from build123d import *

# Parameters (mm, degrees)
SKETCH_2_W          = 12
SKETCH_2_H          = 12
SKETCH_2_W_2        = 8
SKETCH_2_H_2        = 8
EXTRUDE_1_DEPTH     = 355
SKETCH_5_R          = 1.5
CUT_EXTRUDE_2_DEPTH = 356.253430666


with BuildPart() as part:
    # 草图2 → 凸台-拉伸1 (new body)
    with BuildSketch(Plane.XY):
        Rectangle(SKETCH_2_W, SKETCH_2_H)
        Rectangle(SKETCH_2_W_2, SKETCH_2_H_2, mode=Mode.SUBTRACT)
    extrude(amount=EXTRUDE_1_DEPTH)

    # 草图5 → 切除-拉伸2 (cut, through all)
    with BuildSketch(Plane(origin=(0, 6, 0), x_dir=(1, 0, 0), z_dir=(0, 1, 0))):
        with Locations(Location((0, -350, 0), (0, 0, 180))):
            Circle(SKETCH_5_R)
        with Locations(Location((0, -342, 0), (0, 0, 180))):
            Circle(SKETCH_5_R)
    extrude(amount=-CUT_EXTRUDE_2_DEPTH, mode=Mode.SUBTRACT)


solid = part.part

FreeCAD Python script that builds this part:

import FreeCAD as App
import Part
import Sketcher

doc = App.newDocument("Part")
body = doc.addObject("PartDesign::Body", "Body")

# Sketch on XY plane
sketch1 = doc.addObject("Sketcher::SketchObject", "Sketch")
body.addObject(sketch1)
sketch1.AttachmentSupport = (doc.XY_Plane, [""])
sketch1.MapMode = "FlatFace"
sketch1.addGeometry([
    Part.LineSegment(App.Vector(-6, 6, 0), App.Vector(-6, -6, 0)),  # 0
    Part.LineSegment(App.Vector(-6, -6, 0), App.Vector(6, -6, 0)),  # 1
    Part.LineSegment(App.Vector(6, -6, 0), App.Vector(6, 6, 0)),  # 2
    Part.LineSegment(App.Vector(6, 6, 0), App.Vector(-6, 6, 0)),  # 3
    Part.LineSegment(App.Vector(4, -4, 0), App.Vector(-4, -4, 0)),  # 4
    Part.LineSegment(App.Vector(-4, -4, 0), App.Vector(-4, 4, 0)),  # 5
    Part.LineSegment(App.Vector(-4, 4, 0), App.Vector(4, 4, 0)),  # 6
    Part.LineSegment(App.Vector(4, 4, 0), App.Vector(4, -4, 0)),  # 7
], False)
sketch1.addConstraint([
    Sketcher.Constraint("Coincident", 0, 2, 1, 1),
    Sketcher.Constraint("Coincident", 1, 2, 2, 1),
    Sketcher.Constraint("Coincident", 2, 2, 3, 1),
    Sketcher.Constraint("Coincident", 3, 2, 0, 1),
    Sketcher.Constraint("Coincident", 4, 2, 5, 1),
    Sketcher.Constraint("Coincident", 5, 2, 6, 1),
    Sketcher.Constraint("Coincident", 6, 2, 7, 1),
    Sketcher.Constraint("Coincident", 7, 2, 4, 1),
    Sketcher.Constraint("Vertical", 0),
    Sketcher.Constraint("Horizontal", 1),
    Sketcher.Constraint("Vertical", 2),
    Sketcher.Constraint("Horizontal", 3),
    Sketcher.Constraint("Horizontal", 4),
    Sketcher.Constraint("Vertical", 5),
    Sketcher.Constraint("Horizontal", 6),
    Sketcher.Constraint("Vertical", 7),
    Sketcher.Constraint("Symmetric", 0, 2, 2, 2, -1, 1),
    Sketcher.Constraint("Symmetric", 4, 2, 6, 2, -1, 1),
    Sketcher.Constraint("Equal", 3, 0),
    Sketcher.Constraint("Equal", 6, 5),
    Sketcher.Constraint("DistanceX", 1, 1, 1, 2, 12.0),
    Sketcher.Constraint("DistanceX", 4, 2, 4, 1, 8.0),
])
pad1 = doc.addObject("PartDesign::Pad", "Pad")
body.addObject(pad1)
pad1.Profile = sketch1
pad1.Length = 355

# Sketch on XZ plane
sketch2 = doc.addObject("Sketcher::SketchObject", "Sketch001")
body.addObject(sketch2)
sketch2.AttachmentSupport = (doc.XZ_Plane, [""])
sketch2.MapMode = "FlatFace"
sketch2.AttachmentOffset = App.Placement(App.Vector(0, 0, -6), App.Rotation())
sketch2.addGeometry([
    Part.Circle(App.Vector(0, 350, 0), App.Vector(0, 0, 1), 1.5),
    Part.Circle(App.Vector(0, 342, 0), App.Vector(0, 0, 1), 1.5),
], False)
sketch2.addConstraint([
    Sketcher.Constraint("Equal", 0, 1),
    Sketcher.Constraint("PointOnObject", 0, 3, -2),
    Sketcher.Constraint("PointOnObject", 1, 3, -2),
    Sketcher.Constraint("Diameter", 0, 3.0),
    Sketcher.Constraint("DistanceY", -1, 1, 0, 3, 350.0),
    Sketcher.Constraint("DistanceY", -1, 1, 1, 3, 342.0),
])
pocket1 = doc.addObject("PartDesign::Pocket", "Pocket")
body.addObject(pocket1)
pocket1.Profile = sketch2
pocket1.Type = "ThroughAll"
pocket1.Reversed = True

doc.recompute()
